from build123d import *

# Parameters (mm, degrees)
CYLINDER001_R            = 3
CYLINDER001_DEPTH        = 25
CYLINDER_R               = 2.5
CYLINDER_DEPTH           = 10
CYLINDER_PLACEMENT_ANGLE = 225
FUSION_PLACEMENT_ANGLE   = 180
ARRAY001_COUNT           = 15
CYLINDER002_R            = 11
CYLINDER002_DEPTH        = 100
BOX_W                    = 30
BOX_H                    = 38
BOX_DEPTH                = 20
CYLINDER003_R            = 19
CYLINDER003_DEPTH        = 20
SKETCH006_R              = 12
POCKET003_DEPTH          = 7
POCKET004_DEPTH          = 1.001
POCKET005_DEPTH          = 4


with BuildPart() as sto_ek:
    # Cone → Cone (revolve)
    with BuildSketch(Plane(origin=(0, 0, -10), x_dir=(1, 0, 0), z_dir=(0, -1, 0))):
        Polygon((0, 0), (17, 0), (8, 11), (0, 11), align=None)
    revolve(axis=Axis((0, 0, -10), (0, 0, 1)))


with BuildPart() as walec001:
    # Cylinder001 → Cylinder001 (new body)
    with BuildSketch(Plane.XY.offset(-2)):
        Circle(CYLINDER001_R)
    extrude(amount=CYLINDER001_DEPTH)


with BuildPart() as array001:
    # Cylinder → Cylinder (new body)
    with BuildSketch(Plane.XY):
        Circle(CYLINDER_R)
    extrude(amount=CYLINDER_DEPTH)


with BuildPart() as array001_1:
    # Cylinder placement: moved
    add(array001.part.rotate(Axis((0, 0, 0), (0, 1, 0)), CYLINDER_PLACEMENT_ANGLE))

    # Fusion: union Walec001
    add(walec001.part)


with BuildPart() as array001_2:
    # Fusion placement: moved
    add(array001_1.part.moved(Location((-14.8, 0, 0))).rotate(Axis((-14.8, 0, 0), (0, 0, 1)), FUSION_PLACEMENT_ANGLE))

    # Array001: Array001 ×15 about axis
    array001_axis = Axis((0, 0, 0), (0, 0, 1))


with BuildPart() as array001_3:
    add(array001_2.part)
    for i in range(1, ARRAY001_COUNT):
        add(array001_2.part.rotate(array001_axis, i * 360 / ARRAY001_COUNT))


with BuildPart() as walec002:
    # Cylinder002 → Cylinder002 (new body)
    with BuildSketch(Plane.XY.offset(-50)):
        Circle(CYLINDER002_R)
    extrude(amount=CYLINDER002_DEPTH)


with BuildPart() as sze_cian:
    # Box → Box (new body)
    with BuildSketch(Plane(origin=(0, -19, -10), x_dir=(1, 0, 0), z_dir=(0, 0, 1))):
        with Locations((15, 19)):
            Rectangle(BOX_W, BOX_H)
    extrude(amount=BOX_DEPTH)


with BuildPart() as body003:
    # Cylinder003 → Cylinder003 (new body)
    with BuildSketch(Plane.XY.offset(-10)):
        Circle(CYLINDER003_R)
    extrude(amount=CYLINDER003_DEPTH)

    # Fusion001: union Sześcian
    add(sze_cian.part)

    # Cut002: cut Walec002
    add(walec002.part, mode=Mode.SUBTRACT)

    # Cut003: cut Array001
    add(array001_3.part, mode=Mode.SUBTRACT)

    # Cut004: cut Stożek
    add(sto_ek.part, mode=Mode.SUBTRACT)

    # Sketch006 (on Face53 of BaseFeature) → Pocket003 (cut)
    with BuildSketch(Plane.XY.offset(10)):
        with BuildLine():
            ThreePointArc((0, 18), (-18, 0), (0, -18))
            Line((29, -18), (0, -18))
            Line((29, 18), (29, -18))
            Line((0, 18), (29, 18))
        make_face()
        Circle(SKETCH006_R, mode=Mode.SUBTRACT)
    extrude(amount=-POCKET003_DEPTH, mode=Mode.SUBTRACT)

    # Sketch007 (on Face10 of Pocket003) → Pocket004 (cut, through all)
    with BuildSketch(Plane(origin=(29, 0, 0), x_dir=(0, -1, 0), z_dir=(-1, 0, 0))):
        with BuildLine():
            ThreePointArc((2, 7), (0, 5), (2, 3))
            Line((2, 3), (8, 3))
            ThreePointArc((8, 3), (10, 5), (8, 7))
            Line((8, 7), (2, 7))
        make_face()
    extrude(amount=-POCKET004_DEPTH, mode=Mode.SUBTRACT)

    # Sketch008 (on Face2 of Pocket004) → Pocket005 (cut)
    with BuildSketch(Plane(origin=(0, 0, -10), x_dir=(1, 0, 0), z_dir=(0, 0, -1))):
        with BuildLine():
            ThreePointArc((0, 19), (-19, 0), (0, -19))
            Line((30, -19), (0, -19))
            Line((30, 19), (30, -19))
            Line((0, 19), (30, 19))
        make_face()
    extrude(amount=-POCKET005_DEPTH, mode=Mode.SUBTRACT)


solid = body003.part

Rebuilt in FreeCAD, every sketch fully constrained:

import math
import FreeCAD as App
import Part
import Sketcher

V = App.Vector


def add_polygon(sketch, points):
    """Adds a closed chain of lines whose ends are joined by coincident constraints."""
    first, n = sketch.GeometryCount, len(points)
    for a, b in zip(points, points[1:] + points[:1]):
        sketch.addGeometry(Part.LineSegment(App.Vector(*a, 0), App.Vector(*b, 0)), False)
    for i in range(n):
        sketch.addConstraint(Sketcher.Constraint("Coincident", first + i, 2, first + (i + 1) % n, 1))

doc = App.newDocument("Part")
body = doc.addObject("PartDesign::Body", "Body")

sketch1 = body.newObject("Sketcher::SketchObject", "Sketch")
sketch1.AttachmentSupport = (doc.getObject("XZ_Plane"), [""])
sketch1.MapMode = "FlatFace"
add_polygon(sketch1, [(0, -10), (17, -10), (8, 1), (0, 1)])
sketch1.addConstraint([
    Sketcher.Constraint("Horizontal", 0),
    Sketcher.Constraint("Horizontal", 2),
    Sketcher.Constraint("Vertical", 3),
    Sketcher.Constraint("PointOnObject", 2, 2, -2),
    Sketcher.Constraint("DistanceX", 0, 1, 0, 2, 17.0),
    Sketcher.Constraint("DistanceX", 2, 2, 2, 1, 8.0),
    Sketcher.Constraint("DistanceY", 3, 2, 3, 1, 11.0),
    Sketcher.Constraint("DistanceY", 0, 2, -1, 1, 10.0),
])
revolution = body.newObject("PartDesign::Revolution", "Revolution")
revolution.Profile = sketch1
revolution.ReferenceAxis = (sketch1, ["V_Axis"])
revolution.Angle = 360
body2 = doc.addObject("PartDesign::Body", "Body001")

sketch2 = body2.newObject("Sketcher::SketchObject", "Sketch001")
sketch2.AttachmentSupport = (doc.getObject("XY_Plane001"), [""])
sketch2.MapMode = "FlatFace"
sketch2.AttachmentOffset = App.Placement(V(0, 0, -2), App.Rotation())
sketch2.addGeometry(Part.Circle(V(0, 0, 0), V(0, 0, 1), 3), False)
sketch2.addConstraint([
    Sketcher.Constraint("Coincident", 0, 3, -1, 1),
    Sketcher.Constraint("Diameter", 0, 6.0),
])
pad1 = body2.newObject("PartDesign::Pad", "Pad")
pad1.Profile = sketch2
pad1.Length = 25
body3 = doc.addObject("PartDesign::Body", "Body002")

sketch3 = body3.newObject("Sketcher::SketchObject", "Sketch002")
sketch3.AttachmentSupport = (doc.getObject("XY_Plane002"), [""])
sketch3.MapMode = "FlatFace"
sketch3.addGeometry(Part.Circle(V(0, 0, 0), V(0, 0, 1), 2.5), False)
sketch3.addConstraint([
    Sketcher.Constraint("Coincident", 0, 3, -1, 1),
    Sketcher.Constraint("Diameter", 0, 5.0),
])
pad2 = body3.newObject("PartDesign::Pad", "Pad001")
pad2.Profile = sketch3
pad2.Length = 10
body4 = doc.addObject("PartDesign::Body", "Body003")
doc.recompute()

body3.Placement = App.Placement(V(0, 0, 0), App.Rotation(V(0, 1, 0), 225))
boolean = body4.newObject("PartDesign::Boolean", "Boolean")
boolean.Type = "Fuse"
boolean.addObjects([body3])
doc.recompute()

boolean2 = body4.newObject("PartDesign::Boolean", "Boolean001")
boolean2.Type = "Fuse"
boolean2.addObjects([body2])
body5 = doc.addObject("PartDesign::Body", "Body004")
doc.recompute()

body4.Placement = App.Placement(V(-14.8, 0, 0), App.Rotation(V(0, 0, 1), 180))
boolean3 = body5.newObject("PartDesign::Boolean", "Boolean002")
boolean3.Type = "Fuse"
boolean3.addObjects([body4])
body6 = doc.addObject("PartDesign::Body", "Body005")
doc.recompute()

body6.BaseFeature = body5
doc.recompute()

body7 = doc.addObject("PartDesign::Body", "Body006")
body7.BaseFeature = body5
body7.Placement = App.Placement(V(0, 0, 0), App.Rotation(V(0, 0, 1), 24))
boolean4 = body6.newObject("PartDesign::Boolean", "Boolean003")
boolean4.Type = "Fuse"
boolean4.addObjects([body7])
doc.recompute()

body8 = doc.addObject("PartDesign::Body", "Body007")
body8.BaseFeature = body5
body8.Placement = App.Placement(V(0, 0, 0), App.Rotation(V(0, 0, 1), 48))
boolean5 = body6.newObject("PartDesign::Boolean", "Boolean004")
boolean5.Type = "Fuse"
boolean5.addObjects([body8])
doc.recompute()

body9 = doc.addObject("PartDesign::Body", "Body008")
body9.BaseFeature = body5
body9.Placement = App.Placement(V(0, 0, 0), App.Rotation(V(0, 0, 1), 72))
boolean6 = body6.newObject("PartDesign::Boolean", "Boolean005")
boolean6.Type = "Fuse"
boolean6.addObjects([body9])
doc.recompute()

body10 = doc.addObject("PartDesign::Body", "Body009")
body10.BaseFeature = body5
body10.Placement = App.Placement(V(0, 0, 0), App.Rotation(V(0, 0, 1), 96))
boolean7 = body6.newObject("PartDesign::Boolean", "Boolean006")
boolean7.Type = "Fuse"
boolean7.addObjects([body10])
doc.recompute()

body11 = doc.addObject("PartDesign::Body", "Body010")
body11.BaseFeature = body5
body11.Placement = App.Placement(V(0, 0, 0), App.Rotation(V(0, 0, 1), 120))
boolean8 = body6.newObject("PartDesign::Boolean", "Boolean007")
boolean8.Type = "Fuse"
boolean8.addObjects([body11])
doc.recompute()

body12 = doc.addObject("PartDesign::Body", "Body011")
body12.BaseFeature = body5
body12.Placement = App.Placement(V(0, 0, 0), App.Rotation(V(0, 0, 1), 144))
boolean9 = body6.newObject("PartDesign::Boolean", "Boolean008")
boolean9.Type = "Fuse"
boolean9.addObjects([body12])
doc.recompute()

body13 = doc.addObject("PartDesign::Body", "Body012")
body13.BaseFeature = body5
body13.Placement = App.Placement(V(0, 0, 0), App.Rotation(V(0, 0, 1), 168))
boolean10 = body6.newObject("PartDesign::Boolean", "Boolean009")
boolean10.Type = "Fuse"
boolean10.addObjects([body13])
doc.recompute()

body14 = doc.addObject("PartDesign::Body", "Body013")
body14.BaseFeature = body5
body14.Placement = App.Placement(V(0, 0, 0), App.Rotation(V(0, 0, 1), 192))
boolean11 = body6.newObject("PartDesign::Boolean", "Boolean010")
boolean11.Type = "Fuse"
boolean11.addObjects([body14])
doc.recompute()

body15 = doc.addObject("PartDesign::Body", "Body014")
body15.BaseFeature = body5
body15.Placement = App.Placement(V(0, 0, 0), App.Rotation(V(0, 0, 1), 216))
boolean12 = body6.newObject("PartDesign::Boolean", "Boolean011")
boolean12.Type = "Fuse"
boolean12.addObjects([body15])
doc.recompute()

body16 = doc.addObject("PartDesign::Body", "Body015")
body16.BaseFeature = body5
body16.Placement = App.Placement(V(0, 0, 0), App.Rotation(V(0, 0, 1), 240))
boolean13 = body6.newObject("PartDesign::Boolean", "Boolean012")
boolean13.Type = "Fuse"
boolean13.addObjects([body16])
doc.recompute()

body17 = doc.addObject("PartDesign::Body", "Body016")
body17.BaseFeature = body5
body17.Placement = App.Placement(V(0, 0, 0), App.Rotation(V(0, 0, 1), 264))
boolean14 = body6.newObject("PartDesign::Boolean", "Boolean013")
boolean14.Type = "Fuse"
boolean14.addObjects([body17])
doc.recompute()

body18 = doc.addObject("PartDesign::Body", "Body017")
body18.BaseFeature = body5
body18.Placement = App.Placement(V(0, 0, 0), App.Rotation(V(0, 0, 1), 288))
boolean15 = body6.newObject("PartDesign::Boolean", "Boolean014")
boolean15.Type = "Fuse"
boolean15.addObjects([body18])
doc.recompute()

body19 = doc.addObject("PartDesign::Body", "Body018")
body19.BaseFeature = body5
body19.Placement = App.Placement(V(0, 0, 0), App.Rotation(V(0, 0, 1), 312))
boolean16 = body6.newObject("PartDesign::Boolean", "Boolean015")
boolean16.Type = "Fuse"
boolean16.addObjects([body19])
doc.recompute()

body5.Placement = App.Placement(V(0, 0, 0), App.Rotation(V(0, 0, 1), 336))
boolean17 = body6.newObject("PartDesign::Boolean", "Boolean016")
boolean17.Type = "Fuse"
boolean17.addObjects([body5])
body20 = doc.addObject("PartDesign::Body", "Body019")

sketch4 = body20.newObject("Sketcher::SketchObject", "Sketch003")
sketch4.AttachmentSupport = (doc.getObject("XY_Plane019"), [""])
sketch4.MapMode = "FlatFace"
sketch4.AttachmentOffset = App.Placement(V(0, 0, -50), App.Rotation())
sketch4.addGeometry(Part.Circle(V(0, 0, 0), V(0, 0, 1), 11), False)
sketch4.addConstraint([
    Sketcher.Constraint("Coincident", 0, 3, -1, 1),
    Sketcher.Constraint("Diameter", 0, 22.0),
])
pad3 = body20.newObject("PartDesign::Pad", "Pad002")
pad3.Profile = sketch4
pad3.Length = 100
body21 = doc.addObject("PartDesign::Body", "Body020")

sketch5 = body21.newObject("Sketcher::SketchObject", "Sketch004")
sketch5.AttachmentSupport = (doc.getObject("XY_Plane020"), [""])
sketch5.MapMode = "FlatFace"
sketch5.AttachmentOffset = App.Placement(V(0, 0, -10), App.Rotation())
add_polygon(sketch5, [(0, 19), (0, -19), (30, -19), (30, 19)])
sketch5.addConstraint([
    Sketcher.Constraint("Vertical", 0),
    Sketcher.Constraint("Horizontal", 1),
    Sketcher.Constraint("Vertical", 2),
    Sketcher.Constraint("Horizontal", 3),
    Sketcher.Constraint("Symmetric", 0, 2, 3, 2, -1, 1),
    Sketcher.Constraint("DistanceX", 1, 1, 1, 2, 30.0),
    Sketcher.Constraint("DistanceY", 0, 2, 0, 1, 38.0),
])
pad4 = body21.newObject("PartDesign::Pad", "Pad003")
pad4.Profile = sketch5
pad4.Length = 20
body22 = doc.addObject("PartDesign::Body", "Body021")

sketch6 = body22.newObject("Sketcher::SketchObject", "Sketch005")
sketch6.AttachmentSupport = (doc.getObject("XY_Plane021"), [""])
sketch6.MapMode = "FlatFace"
sketch6.AttachmentOffset = App.Placement(V(0, 0, -10), App.Rotation())
sketch6.addGeometry(Part.Circle(V(0, 0, 0), V(0, 0, 1), 19), False)
sketch6.addConstraint([
    Sketcher.Constraint("Coincident", 0, 3, -1, 1),
    Sketcher.Constraint("Diameter", 0, 38.0),
])
pad5 = body22.newObject("PartDesign::Pad", "Pad004")
pad5.Profile = sketch6
pad5.Length = 20
doc.recompute()

boolean18 = body22.newObject("PartDesign::Boolean", "Boolean017")
boolean18.Type = "Fuse"
boolean18.addObjects([body21])
doc.recompute()

boolean19 = body22.newObject("PartDesign::Boolean", "Boolean018")
boolean19.Type = "Cut"
boolean19.addObjects([body20])
doc.recompute()

boolean20 = body22.newObject("PartDesign::Boolean", "Boolean019")
boolean20.Type = "Cut"
boolean20.addObjects([body6])
doc.recompute()

boolean21 = body22.newObject("PartDesign::Boolean", "Boolean020")
boolean21.Type = "Cut"
boolean21.addObjects([body])

sketch7 = body22.newObject("Sketcher::SketchObject", "Sketch006")
sketch7.AttachmentSupport = (doc.getObject("XY_Plane021"), [""])
sketch7.MapMode = "FlatFace"
sketch7.AttachmentOffset = App.Placement(V(0, 0, 10), App.Rotation())
sketch7.addGeometry([
    Part.ArcOfCircle(Part.Circle(V(0, 0, 0), V(0, 0, 1), 18), math.radians(90), math.radians(270)),
    Part.LineSegment(V(0, -18, 0), V(29, -18, 0)),
    Part.LineSegment(V(29, -18, 0), V(29, 18, 0)),
    Part.LineSegment(V(29, 18, 0), V(0, 18, 0)),
    Part.Circle(V(0, 0, 0), V(0, 0, 1), 12),
], False)
sketch7.addConstraint([
    Sketcher.Constraint("Tangent", 0, 2, 1, 1),
    Sketcher.Constraint("Coincident", 1, 2, 2, 1),
    Sketcher.Constraint("Coincident", 2, 2, 3, 1),
    Sketcher.Constraint("Tangent", 3, 2, 0, 1),
    Sketcher.Constraint("Horizontal", 1),
    Sketcher.Constraint("Vertical", 2),
    Sketcher.Constraint("Horizontal", 3),
    Sketcher.Constraint("Coincident", 0, 3, -1, 1),
    Sketcher.Constraint("Coincident", 4, 3, -1, 1),
    Sketcher.Constraint("Diameter", 4, 24.0),
    Sketcher.Constraint("Radius", 0, 18.0),
    Sketcher.Constraint("DistanceX", 1, 1, 1, 2, 29.0),
])
pocket1 = body22.newObject("PartDesign::Pocket", "Pocket")
pocket1.Profile = sketch7
pocket1.Length = 7

sketch8 = body22.newObject("Sketcher::SketchObject", "Sketch007")
sketch8.AttachmentSupport = (doc.getObject("YZ_Plane021"), [""])
sketch8.MapMode = "FlatFace"
sketch8.AttachmentOffset = App.Placement(V(0, 0, 29), App.Rotation())
sketch8.addGeometry([
    Part.ArcOfCircle(Part.Circle(V(-2, 5, 0), V(0, 0, 1), 2), math.radians(-90), math.radians(90)),
    Part.LineSegment(V(-2, 3, 0), V(-8, 3, 0)),
    Part.ArcOfCircle(Part.Circle(V(-8, 5, 0), V(0, 0, 1), 2), math.radians(90), math.radians(270)),
    Part.LineSegment(V(-8, 7, 0), V(-2, 7, 0)),
], False)
sketch8.addConstraint([
    Sketcher.Constraint("Tangent", 0, 1, 1, 1),
    Sketcher.Constraint("Tangent", 1, 2, 2, 2),
    Sketcher.Constraint("Tangent", 2, 1, 3, 1),
    Sketcher.Constraint("Tangent", 3, 2, 0, 2),
    Sketcher.Constraint("Horizontal", 1),
    Sketcher.Constraint("Horizontal", 3),
    Sketcher.Constraint("Radius", 0, 2.0),
    Sketcher.Constraint("DistanceX", 1, 2, 1, 1, 6.0),
    Sketcher.Constraint("DistanceX", 0, 3, -1, 1, 2.0),
    Sketcher.Constraint("DistanceY", -1, 1, 0, 3, 5.0),
])
pocket2 = body22.newObject("PartDesign::Pocket", "Pocket001")
pocket2.Profile = sketch8
pocket2.Type = "ThroughAll"
pocket2.Reversed = True

sketch9 = body22.newObject("Sketcher::SketchObject", "Sketch008")
sketch9.AttachmentSupport = (doc.getObject("XY_Plane021"), [""])
sketch9.MapMode = "FlatFace"
sketch9.AttachmentOffset = App.Placement(V(0, 0, -10), App.Rotation())
sketch9.addGeometry([
    Part.ArcOfCircle(Part.Circle(V(0, 0, 0), V(0, 0, 1), 19), math.radians(90), math.radians(270)),
    Part.LineSegment(V(0, 19, 0), V(30, 19, 0)),
    Part.LineSegment(V(30, 19, 0), V(30, -19, 0)),
    Part.LineSegment(V(30, -19, 0), V(0, -19, 0)),
], False)
sketch9.addConstraint([
    Sketcher.Constraint("Tangent", 0, 1, 1, 1),
    Sketcher.Constraint("Coincident", 1, 2, 2, 1),
    Sketcher.Constraint("Coincident", 2, 2, 3, 1),
    Sketcher.Constraint("Tangent", 3, 2, 0, 2),
    Sketcher.Constraint("Horizontal", 1),
    Sketcher.Constraint("Vertical", 2),
    Sketcher.Constraint("Horizontal", 3),
    Sketcher.Constraint("Coincident", 0, 3, -1, 1),
    Sketcher.Constraint("Radius", 0, 19.0),
    Sketcher.Constraint("DistanceX", 1, 1, 1, 2, 30.0),
])
pocket3 = body22.newObject("PartDesign::Pocket", "Pocket002")
pocket3.Profile = sketch9
pocket3.Length = 4
pocket3.Reversed = True

doc.recompute()
